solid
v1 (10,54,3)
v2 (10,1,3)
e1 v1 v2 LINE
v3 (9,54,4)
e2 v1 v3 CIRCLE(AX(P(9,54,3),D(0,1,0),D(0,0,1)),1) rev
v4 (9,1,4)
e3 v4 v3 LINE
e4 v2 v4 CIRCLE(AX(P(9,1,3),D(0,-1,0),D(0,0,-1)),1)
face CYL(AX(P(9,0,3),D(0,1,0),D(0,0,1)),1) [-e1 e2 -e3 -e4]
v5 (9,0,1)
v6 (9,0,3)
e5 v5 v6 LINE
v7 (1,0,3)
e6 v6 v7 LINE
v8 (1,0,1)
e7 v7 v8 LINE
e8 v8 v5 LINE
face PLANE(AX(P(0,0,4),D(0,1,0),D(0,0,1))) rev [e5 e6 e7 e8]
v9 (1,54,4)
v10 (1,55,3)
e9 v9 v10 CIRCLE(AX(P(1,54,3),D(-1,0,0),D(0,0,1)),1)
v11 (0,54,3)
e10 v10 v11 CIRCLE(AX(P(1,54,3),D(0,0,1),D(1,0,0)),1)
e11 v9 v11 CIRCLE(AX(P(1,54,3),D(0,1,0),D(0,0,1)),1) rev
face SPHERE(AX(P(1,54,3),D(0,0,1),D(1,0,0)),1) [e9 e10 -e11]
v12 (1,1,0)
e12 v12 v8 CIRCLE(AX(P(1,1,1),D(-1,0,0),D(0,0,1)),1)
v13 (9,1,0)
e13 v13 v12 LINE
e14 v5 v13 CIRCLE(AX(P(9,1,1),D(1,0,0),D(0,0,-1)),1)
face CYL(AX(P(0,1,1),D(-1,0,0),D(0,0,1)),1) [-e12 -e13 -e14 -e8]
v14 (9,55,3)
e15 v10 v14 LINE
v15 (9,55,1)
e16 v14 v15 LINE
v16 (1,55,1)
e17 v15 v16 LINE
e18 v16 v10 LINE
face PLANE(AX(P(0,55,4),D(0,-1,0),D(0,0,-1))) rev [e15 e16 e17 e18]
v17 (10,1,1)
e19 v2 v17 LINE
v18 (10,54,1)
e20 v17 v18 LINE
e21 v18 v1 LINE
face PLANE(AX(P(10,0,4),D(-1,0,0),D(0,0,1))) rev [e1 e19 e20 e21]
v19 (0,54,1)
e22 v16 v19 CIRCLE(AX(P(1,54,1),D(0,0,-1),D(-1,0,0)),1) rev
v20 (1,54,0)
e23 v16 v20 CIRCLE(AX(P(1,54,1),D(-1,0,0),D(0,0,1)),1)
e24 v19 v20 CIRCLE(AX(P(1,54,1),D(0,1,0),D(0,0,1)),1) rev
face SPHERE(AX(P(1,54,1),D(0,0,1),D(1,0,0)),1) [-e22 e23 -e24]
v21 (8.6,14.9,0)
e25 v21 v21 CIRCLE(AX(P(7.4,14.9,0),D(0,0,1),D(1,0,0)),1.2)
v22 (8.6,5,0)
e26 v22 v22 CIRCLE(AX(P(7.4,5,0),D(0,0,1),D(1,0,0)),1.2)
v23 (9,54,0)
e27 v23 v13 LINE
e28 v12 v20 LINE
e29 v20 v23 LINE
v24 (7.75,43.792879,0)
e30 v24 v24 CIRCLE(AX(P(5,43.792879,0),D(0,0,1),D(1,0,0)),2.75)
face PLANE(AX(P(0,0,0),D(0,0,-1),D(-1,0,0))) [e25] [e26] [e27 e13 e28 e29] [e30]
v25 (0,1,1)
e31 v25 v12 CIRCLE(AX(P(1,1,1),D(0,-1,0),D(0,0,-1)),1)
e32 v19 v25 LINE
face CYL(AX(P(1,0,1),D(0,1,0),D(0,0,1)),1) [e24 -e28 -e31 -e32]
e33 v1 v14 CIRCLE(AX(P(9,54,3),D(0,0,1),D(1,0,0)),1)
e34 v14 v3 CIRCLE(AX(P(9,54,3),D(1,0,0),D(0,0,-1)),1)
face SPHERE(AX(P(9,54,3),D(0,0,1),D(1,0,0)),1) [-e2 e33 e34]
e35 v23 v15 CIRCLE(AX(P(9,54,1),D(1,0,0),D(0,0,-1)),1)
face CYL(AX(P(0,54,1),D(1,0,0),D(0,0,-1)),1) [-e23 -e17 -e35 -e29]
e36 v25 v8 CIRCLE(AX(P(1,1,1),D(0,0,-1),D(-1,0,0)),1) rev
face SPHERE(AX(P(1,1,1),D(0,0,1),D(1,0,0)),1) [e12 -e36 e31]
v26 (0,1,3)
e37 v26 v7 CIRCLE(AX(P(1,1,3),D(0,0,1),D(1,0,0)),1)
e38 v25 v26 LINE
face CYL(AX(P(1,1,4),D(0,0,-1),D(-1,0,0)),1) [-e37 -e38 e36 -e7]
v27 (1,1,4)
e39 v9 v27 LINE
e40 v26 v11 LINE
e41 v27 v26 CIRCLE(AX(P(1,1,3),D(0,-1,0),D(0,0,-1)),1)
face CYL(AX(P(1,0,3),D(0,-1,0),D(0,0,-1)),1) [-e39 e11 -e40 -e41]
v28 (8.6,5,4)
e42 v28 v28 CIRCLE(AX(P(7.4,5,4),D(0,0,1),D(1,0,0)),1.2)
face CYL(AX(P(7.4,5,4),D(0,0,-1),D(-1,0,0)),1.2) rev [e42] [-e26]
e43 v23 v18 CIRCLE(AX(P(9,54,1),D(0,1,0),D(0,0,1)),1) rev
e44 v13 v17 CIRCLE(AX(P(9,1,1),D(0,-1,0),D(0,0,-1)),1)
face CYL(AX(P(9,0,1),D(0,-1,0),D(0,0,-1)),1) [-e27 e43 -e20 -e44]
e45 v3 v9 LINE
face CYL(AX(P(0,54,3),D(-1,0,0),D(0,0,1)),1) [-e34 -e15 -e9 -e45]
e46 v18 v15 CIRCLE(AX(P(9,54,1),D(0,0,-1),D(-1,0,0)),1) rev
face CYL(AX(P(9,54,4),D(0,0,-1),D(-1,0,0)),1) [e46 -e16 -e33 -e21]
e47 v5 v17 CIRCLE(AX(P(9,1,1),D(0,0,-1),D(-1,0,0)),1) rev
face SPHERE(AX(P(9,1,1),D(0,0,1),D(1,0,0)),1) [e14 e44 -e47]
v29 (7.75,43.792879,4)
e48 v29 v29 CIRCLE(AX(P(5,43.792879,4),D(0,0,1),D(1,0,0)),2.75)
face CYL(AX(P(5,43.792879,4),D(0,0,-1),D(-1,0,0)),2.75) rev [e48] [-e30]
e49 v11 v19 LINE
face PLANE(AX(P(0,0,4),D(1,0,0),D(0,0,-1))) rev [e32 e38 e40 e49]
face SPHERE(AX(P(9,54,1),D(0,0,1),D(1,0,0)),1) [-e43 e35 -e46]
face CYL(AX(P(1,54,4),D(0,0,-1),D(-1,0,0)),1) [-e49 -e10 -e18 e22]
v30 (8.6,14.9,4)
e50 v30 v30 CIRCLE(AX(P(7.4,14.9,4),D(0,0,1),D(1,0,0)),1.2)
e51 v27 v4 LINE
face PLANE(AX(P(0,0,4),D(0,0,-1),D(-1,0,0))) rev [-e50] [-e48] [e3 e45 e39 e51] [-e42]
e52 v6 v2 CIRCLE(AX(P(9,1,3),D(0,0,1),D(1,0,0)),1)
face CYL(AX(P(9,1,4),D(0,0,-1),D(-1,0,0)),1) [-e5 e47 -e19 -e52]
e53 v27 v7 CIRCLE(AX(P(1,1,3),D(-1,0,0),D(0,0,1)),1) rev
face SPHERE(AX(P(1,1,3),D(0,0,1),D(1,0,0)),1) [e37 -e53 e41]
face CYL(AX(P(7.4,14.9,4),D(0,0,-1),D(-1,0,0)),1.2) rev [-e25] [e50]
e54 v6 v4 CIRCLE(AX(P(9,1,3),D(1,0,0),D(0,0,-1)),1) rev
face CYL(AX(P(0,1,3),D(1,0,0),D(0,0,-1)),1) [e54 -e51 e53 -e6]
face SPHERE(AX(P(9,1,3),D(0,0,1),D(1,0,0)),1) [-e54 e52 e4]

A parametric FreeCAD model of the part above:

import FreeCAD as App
import Part
import Sketcher

V = App.Vector


def edges_at(feature, points):
    """Names of the edges that pass closest to the given points."""
    edges = feature.Shape.Edges
    near = lambda p: min(range(len(edges)), key=lambda i: edges[i].distToShape(Part.Vertex(*p))[0])
    return sorted({f"Edge{near(p) + 1}" for p in points})

doc = App.newDocument("Part")
body = doc.addObject("PartDesign::Body", "Body")

# Sketch on XY plane
sketch1 = doc.addObject("Sketcher::SketchObject", "Sketch")
body.addObject(sketch1)
sketch1.AttachmentSupport = (doc.XY_Plane, [""])
sketch1.MapMode = "FlatFace"
sketch1.addGeometry(Part.LineSegment(V(0, 55, 0), V(0, 0, 0)), False)
sketch1.addGeometry(Part.LineSegment(V(0, 0, 0), V(10, 0, 0)), False)
sketch1.addGeometry(Part.LineSegment(V(10, 0, 0), V(10, 55, 0)), False)
sketch1.addGeometry(Part.LineSegment(V(10, 55, 0), V(0, 55, 0)), False)
sketch1.addGeometry(Part.Circle(V(7.4, 5, 0), V(0, 0, 1), 1.2), False)
sketch1.addGeometry(Part.Circle(V(7.4, 14.9, 0), V(0, 0, 1), 1.2), False)
sketch1.addGeometry(Part.Circle(V(5, 43.792879, 0), V(0, 0, 1), 2.75), False)
sketch1.addConstraint(Sketcher.Constraint("Coincident", 0, 2, 1, 1))
sketch1.addConstraint(Sketcher.Constraint("Coincident", 1, 2, 2, 1))
sketch1.addConstraint(Sketcher.Constraint("Coincident", 2, 2, 3, 1))
sketch1.addConstraint(Sketcher.Constraint("Coincident", 3, 2, 0, 1))
sketch1.addConstraint(Sketcher.Constraint("Vertical", 0))
sketch1.addConstraint(Sketcher.Constraint("Horizontal", 1))
sketch1.addConstraint(Sketcher.Constraint("Vertical", 2))
sketch1.addConstraint(Sketcher.Constraint("Horizontal", 3))
sketch1.addConstraint(Sketcher.Constraint("Coincident", 0, 2, -1, 1))
sketch1.addConstraint(Sketcher.Constraint("Equal", 4, 5))
sketch1.addConstraint(Sketcher.Constraint("Vertical", 4, 3, 5, 3))
sketch1.addConstraint(Sketcher.Constraint("Diameter", 4, 2.4))
sketch1.addConstraint(Sketcher.Constraint("Diameter", 6, 5.5))
sketch1.addConstraint(Sketcher.Constraint("DistanceX", 1, 1, 1, 2, 10.0))
sketch1.addConstraint(Sketcher.Constraint("DistanceY", 0, 2, 0, 1, 55.0))
sketch1.addConstraint(Sketcher.Constraint("DistanceY", -1, 1, 4, 3, 5.0))
sketch1.addConstraint(Sketcher.Constraint("DistanceX", -1, 1, 6, 3, 5.0))
sketch1.addConstraint(Sketcher.Constraint("DistanceX", -1, 1, 4, 3, 7.4))
sketch1.addConstraint(Sketcher.Constraint("DistanceY", -1, 1, 5, 3, 14.9))
sketch1.addConstraint(Sketcher.Constraint("DistanceY", -1, 1, 6, 3, 43.792879))
pad1 = doc.addObject("PartDesign::Pad", "Pad")
body.addObject(pad1)
pad1.Profile = sketch1
pad1.Length = 4
doc.recompute()

fillet = doc.addObject("PartDesign::Fillet", "Fillet")
body.addObject(fillet)
fillet.Base = (pad1, edges_at(pad1, [
    (10, 27.5, 4),
    (5, 55, 4),
    (0, 27.5, 4),
    (5, 55, 0),
    (10, 27.5, 0),
    (5, 0, 0),
    (0, 27.5, 0),
    (0, 55, 2),
    (10, 55, 2),
    (10, 0, 2),
    (0, 0, 2),
    (5, 0, 4),
]))
fillet.Radius = 1

doc.recompute()
